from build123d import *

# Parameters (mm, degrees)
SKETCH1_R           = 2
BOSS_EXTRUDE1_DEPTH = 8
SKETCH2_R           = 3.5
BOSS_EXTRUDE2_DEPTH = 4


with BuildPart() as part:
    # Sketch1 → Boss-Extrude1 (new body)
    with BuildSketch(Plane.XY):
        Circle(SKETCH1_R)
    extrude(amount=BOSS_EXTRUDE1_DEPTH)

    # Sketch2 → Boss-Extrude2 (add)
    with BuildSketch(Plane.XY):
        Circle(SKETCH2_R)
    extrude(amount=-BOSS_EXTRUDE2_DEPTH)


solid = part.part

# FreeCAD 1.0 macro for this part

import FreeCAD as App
import Part
import Sketcher

V = App.Vector

doc = App.newDocument("Part")
params = doc.addObject("Spreadsheet::Sheet", "Params")
for row, (alias, value) in enumerate([
    ("sketch1_diameter", "4 mm"),
    ("pad1_length", "8 mm"),
    ("sketch2_diameter", "7 mm"),
    ("pad2_length", "4 mm"),
], start=1):
    params.set(f"A{row}", alias)
    params.set(f"B{row}", "=" + value)
    params.setAlias(f"B{row}", alias)

body = doc.addObject("PartDesign::Body", "Body")

# Sketch on XY plane
sketch1 = doc.addObject("Sketcher::SketchObject", "Sketch")
body.addObject(sketch1)
sketch1.AttachmentSupport = (doc.XY_Plane, [""])
sketch1.MapMode = "FlatFace"
sketch1.addGeometry(Part.Circle(V(0, 0, 0), V(0, 0, 1), 2), False)
sketch1.addConstraint([
    Sketcher.Constraint("Coincident", 0, 3, -1, 1),
    Sketcher.Constraint("Diameter", 0, 4.0),
])
sketch1.setExpression("Constraints[1]", "Params.sketch1_diameter")
pad1 = doc.addObject("PartDesign::Pad", "Pad")
body.addObject(pad1)
pad1.Profile = sketch1
pad1.setExpression("Length", "Params.pad1_length")

# Sketch on XY plane
sketch2 = doc.addObject("Sketcher::SketchObject", "Sketch001")
body.addObject(sketch2)
sketch2.AttachmentSupport = (doc.XY_Plane, [""])
sketch2.MapMode = "FlatFace"
sketch2.addGeometry(Part.Circle(V(0, 0, 0), V(0, 0, 1), 3.5), False)
sketch2.addConstraint([
    Sketcher.Constraint("Coincident", 0, 3, -1, 1),
    Sketcher.Constraint("Diameter", 0, 7.0),
])
sketch2.setExpression("Constraints[1]", "Params.sketch2_diameter")
pad2 = doc.addObject("PartDesign::Pad", "Pad001")
body.addObject(pad2)
pad2.Profile = sketch2
pad2.setExpression("Length", "Params.pad2_length")
pad2.Reversed = True

doc.recompute()
